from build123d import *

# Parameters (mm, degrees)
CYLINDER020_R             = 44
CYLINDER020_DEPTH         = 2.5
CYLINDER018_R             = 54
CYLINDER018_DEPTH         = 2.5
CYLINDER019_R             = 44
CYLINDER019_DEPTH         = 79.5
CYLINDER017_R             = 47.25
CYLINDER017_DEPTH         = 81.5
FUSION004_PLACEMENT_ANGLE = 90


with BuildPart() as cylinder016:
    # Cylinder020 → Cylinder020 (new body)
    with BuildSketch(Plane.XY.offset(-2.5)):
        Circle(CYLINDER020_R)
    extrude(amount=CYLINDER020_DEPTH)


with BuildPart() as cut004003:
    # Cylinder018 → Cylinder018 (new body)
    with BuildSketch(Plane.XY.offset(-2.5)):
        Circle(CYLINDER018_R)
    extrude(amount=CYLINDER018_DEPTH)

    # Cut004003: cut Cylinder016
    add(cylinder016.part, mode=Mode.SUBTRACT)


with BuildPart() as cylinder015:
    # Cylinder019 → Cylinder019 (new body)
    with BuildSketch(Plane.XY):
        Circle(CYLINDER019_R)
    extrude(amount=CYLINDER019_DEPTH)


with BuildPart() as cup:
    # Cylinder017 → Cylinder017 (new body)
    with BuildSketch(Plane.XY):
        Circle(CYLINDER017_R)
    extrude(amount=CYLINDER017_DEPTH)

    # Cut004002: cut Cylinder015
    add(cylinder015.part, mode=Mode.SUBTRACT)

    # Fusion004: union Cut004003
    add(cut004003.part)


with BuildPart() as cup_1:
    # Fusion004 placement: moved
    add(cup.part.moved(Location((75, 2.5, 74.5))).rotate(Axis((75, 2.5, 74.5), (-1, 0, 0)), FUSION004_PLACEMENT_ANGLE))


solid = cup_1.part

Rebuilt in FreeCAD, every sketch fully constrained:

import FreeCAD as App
import Part
import Sketcher

V = App.Vector
Q = App.Units.Quantity

doc = App.newDocument("Part")
body = doc.addObject("PartDesign::Body", "Body")

sketch1 = body.newObject("Sketcher::SketchObject", "Sketch")
sketch1.AttachmentSupport = (doc.getObject("XY_Plane"), [""])
sketch1.MapMode = "FlatFace"
sketch1.AttachmentOffset = App.Placement(V(0, 0, -2.5), App.Rotation())
sketch1.addGeometry(Part.Circle(V(0, 0, 0), V(0, 0, 1), 44), False)
sketch1.addConstraint([
    Sketcher.Constraint("Coincident", 0, 3, -1, 1),
    Sketcher.Constraint("Diameter", 0, Q("88 mm")),
])
pad1 = body.newObject("PartDesign::Pad", "Pad")
pad1.Profile = sketch1
pad1.Length = 2.5
body2 = doc.addObject("PartDesign::Body", "Body001")

sketch2 = body2.newObject("Sketcher::SketchObject", "Sketch001")
sketch2.AttachmentSupport = (doc.getObject("XY_Plane001"), [""])
sketch2.MapMode = "FlatFace"
sketch2.AttachmentOffset = App.Placement(V(0, 0, -2.5), App.Rotation())
sketch2.addGeometry(Part.Circle(V(0, 0, 0), V(0, 0, 1), 54), False)
sketch2.addConstraint([
    Sketcher.Constraint("Coincident", 0, 3, -1, 1),
    Sketcher.Constraint("Diameter", 0, Q("108 mm")),
])
pad2 = body2.newObject("PartDesign::Pad", "Pad001")
pad2.Profile = sketch2
pad2.Length = 2.5
doc.recompute()

boolean = body2.newObject("PartDesign::Boolean", "Boolean")
boolean.Type = "Cut"
boolean.addObjects([body])
body3 = doc.addObject("PartDesign::Body", "Body002")

sketch3 = body3.newObject("Sketcher::SketchObject", "Sketch002")
sketch3.AttachmentSupport = (doc.getObject("XY_Plane002"), [""])
sketch3.MapMode = "FlatFace"
sketch3.addGeometry(Part.Circle(V(0, 0, 0), V(0, 0, 1), 44), False)
sketch3.addConstraint([
    Sketcher.Constraint("Coincident", 0, 3, -1, 1),
    Sketcher.Constraint("Diameter", 0, Q("88 mm")),
])
pad3 = body3.newObject("PartDesign::Pad", "Pad002")
pad3.Profile = sketch3
pad3.Length = 79.5
body4 = doc.addObject("PartDesign::Body", "Body003")

sketch4 = body4.newObject("Sketcher::SketchObject", "Sketch003")
sketch4.AttachmentSupport = (doc.getObject("XY_Plane003"), [""])
sketch4.MapMode = "FlatFace"
sketch4.addGeometry(Part.Circle(V(0, 0, 0), V(0, 0, 1), 47), False)
sketch4.addConstraint([
    Sketcher.Constraint("Coincident", 0, 3, -1, 1),
    Sketcher.Constraint("Diameter", 0, Q("94.5 mm")),
])
pad4 = body4.newObject("PartDesign::Pad", "Pad003")
pad4.Profile = sketch4
pad4.Length = 81.5
doc.recompute()

boolean2 = body4.newObject("PartDesign::Boolean", "Boolean001")
boolean2.Type = "Cut"
boolean2.addObjects([body3])
doc.recompute()

boolean3 = body4.newObject("PartDesign::Boolean", "Boolean002")
boolean3.Type = "Fuse"
boolean3.addObjects([body2])
body5 = doc.addObject("PartDesign::Body", "Body004")
doc.recompute()

body4.Placement = App.Placement(V(75, 2.5, 74.5), App.Rotation(V(-1, 0, 0), 90))
boolean4 = body5.newObject("PartDesign::Boolean", "Boolean003")
boolean4.Type = "Fuse"
boolean4.addObjects([body4])

doc.recompute()
